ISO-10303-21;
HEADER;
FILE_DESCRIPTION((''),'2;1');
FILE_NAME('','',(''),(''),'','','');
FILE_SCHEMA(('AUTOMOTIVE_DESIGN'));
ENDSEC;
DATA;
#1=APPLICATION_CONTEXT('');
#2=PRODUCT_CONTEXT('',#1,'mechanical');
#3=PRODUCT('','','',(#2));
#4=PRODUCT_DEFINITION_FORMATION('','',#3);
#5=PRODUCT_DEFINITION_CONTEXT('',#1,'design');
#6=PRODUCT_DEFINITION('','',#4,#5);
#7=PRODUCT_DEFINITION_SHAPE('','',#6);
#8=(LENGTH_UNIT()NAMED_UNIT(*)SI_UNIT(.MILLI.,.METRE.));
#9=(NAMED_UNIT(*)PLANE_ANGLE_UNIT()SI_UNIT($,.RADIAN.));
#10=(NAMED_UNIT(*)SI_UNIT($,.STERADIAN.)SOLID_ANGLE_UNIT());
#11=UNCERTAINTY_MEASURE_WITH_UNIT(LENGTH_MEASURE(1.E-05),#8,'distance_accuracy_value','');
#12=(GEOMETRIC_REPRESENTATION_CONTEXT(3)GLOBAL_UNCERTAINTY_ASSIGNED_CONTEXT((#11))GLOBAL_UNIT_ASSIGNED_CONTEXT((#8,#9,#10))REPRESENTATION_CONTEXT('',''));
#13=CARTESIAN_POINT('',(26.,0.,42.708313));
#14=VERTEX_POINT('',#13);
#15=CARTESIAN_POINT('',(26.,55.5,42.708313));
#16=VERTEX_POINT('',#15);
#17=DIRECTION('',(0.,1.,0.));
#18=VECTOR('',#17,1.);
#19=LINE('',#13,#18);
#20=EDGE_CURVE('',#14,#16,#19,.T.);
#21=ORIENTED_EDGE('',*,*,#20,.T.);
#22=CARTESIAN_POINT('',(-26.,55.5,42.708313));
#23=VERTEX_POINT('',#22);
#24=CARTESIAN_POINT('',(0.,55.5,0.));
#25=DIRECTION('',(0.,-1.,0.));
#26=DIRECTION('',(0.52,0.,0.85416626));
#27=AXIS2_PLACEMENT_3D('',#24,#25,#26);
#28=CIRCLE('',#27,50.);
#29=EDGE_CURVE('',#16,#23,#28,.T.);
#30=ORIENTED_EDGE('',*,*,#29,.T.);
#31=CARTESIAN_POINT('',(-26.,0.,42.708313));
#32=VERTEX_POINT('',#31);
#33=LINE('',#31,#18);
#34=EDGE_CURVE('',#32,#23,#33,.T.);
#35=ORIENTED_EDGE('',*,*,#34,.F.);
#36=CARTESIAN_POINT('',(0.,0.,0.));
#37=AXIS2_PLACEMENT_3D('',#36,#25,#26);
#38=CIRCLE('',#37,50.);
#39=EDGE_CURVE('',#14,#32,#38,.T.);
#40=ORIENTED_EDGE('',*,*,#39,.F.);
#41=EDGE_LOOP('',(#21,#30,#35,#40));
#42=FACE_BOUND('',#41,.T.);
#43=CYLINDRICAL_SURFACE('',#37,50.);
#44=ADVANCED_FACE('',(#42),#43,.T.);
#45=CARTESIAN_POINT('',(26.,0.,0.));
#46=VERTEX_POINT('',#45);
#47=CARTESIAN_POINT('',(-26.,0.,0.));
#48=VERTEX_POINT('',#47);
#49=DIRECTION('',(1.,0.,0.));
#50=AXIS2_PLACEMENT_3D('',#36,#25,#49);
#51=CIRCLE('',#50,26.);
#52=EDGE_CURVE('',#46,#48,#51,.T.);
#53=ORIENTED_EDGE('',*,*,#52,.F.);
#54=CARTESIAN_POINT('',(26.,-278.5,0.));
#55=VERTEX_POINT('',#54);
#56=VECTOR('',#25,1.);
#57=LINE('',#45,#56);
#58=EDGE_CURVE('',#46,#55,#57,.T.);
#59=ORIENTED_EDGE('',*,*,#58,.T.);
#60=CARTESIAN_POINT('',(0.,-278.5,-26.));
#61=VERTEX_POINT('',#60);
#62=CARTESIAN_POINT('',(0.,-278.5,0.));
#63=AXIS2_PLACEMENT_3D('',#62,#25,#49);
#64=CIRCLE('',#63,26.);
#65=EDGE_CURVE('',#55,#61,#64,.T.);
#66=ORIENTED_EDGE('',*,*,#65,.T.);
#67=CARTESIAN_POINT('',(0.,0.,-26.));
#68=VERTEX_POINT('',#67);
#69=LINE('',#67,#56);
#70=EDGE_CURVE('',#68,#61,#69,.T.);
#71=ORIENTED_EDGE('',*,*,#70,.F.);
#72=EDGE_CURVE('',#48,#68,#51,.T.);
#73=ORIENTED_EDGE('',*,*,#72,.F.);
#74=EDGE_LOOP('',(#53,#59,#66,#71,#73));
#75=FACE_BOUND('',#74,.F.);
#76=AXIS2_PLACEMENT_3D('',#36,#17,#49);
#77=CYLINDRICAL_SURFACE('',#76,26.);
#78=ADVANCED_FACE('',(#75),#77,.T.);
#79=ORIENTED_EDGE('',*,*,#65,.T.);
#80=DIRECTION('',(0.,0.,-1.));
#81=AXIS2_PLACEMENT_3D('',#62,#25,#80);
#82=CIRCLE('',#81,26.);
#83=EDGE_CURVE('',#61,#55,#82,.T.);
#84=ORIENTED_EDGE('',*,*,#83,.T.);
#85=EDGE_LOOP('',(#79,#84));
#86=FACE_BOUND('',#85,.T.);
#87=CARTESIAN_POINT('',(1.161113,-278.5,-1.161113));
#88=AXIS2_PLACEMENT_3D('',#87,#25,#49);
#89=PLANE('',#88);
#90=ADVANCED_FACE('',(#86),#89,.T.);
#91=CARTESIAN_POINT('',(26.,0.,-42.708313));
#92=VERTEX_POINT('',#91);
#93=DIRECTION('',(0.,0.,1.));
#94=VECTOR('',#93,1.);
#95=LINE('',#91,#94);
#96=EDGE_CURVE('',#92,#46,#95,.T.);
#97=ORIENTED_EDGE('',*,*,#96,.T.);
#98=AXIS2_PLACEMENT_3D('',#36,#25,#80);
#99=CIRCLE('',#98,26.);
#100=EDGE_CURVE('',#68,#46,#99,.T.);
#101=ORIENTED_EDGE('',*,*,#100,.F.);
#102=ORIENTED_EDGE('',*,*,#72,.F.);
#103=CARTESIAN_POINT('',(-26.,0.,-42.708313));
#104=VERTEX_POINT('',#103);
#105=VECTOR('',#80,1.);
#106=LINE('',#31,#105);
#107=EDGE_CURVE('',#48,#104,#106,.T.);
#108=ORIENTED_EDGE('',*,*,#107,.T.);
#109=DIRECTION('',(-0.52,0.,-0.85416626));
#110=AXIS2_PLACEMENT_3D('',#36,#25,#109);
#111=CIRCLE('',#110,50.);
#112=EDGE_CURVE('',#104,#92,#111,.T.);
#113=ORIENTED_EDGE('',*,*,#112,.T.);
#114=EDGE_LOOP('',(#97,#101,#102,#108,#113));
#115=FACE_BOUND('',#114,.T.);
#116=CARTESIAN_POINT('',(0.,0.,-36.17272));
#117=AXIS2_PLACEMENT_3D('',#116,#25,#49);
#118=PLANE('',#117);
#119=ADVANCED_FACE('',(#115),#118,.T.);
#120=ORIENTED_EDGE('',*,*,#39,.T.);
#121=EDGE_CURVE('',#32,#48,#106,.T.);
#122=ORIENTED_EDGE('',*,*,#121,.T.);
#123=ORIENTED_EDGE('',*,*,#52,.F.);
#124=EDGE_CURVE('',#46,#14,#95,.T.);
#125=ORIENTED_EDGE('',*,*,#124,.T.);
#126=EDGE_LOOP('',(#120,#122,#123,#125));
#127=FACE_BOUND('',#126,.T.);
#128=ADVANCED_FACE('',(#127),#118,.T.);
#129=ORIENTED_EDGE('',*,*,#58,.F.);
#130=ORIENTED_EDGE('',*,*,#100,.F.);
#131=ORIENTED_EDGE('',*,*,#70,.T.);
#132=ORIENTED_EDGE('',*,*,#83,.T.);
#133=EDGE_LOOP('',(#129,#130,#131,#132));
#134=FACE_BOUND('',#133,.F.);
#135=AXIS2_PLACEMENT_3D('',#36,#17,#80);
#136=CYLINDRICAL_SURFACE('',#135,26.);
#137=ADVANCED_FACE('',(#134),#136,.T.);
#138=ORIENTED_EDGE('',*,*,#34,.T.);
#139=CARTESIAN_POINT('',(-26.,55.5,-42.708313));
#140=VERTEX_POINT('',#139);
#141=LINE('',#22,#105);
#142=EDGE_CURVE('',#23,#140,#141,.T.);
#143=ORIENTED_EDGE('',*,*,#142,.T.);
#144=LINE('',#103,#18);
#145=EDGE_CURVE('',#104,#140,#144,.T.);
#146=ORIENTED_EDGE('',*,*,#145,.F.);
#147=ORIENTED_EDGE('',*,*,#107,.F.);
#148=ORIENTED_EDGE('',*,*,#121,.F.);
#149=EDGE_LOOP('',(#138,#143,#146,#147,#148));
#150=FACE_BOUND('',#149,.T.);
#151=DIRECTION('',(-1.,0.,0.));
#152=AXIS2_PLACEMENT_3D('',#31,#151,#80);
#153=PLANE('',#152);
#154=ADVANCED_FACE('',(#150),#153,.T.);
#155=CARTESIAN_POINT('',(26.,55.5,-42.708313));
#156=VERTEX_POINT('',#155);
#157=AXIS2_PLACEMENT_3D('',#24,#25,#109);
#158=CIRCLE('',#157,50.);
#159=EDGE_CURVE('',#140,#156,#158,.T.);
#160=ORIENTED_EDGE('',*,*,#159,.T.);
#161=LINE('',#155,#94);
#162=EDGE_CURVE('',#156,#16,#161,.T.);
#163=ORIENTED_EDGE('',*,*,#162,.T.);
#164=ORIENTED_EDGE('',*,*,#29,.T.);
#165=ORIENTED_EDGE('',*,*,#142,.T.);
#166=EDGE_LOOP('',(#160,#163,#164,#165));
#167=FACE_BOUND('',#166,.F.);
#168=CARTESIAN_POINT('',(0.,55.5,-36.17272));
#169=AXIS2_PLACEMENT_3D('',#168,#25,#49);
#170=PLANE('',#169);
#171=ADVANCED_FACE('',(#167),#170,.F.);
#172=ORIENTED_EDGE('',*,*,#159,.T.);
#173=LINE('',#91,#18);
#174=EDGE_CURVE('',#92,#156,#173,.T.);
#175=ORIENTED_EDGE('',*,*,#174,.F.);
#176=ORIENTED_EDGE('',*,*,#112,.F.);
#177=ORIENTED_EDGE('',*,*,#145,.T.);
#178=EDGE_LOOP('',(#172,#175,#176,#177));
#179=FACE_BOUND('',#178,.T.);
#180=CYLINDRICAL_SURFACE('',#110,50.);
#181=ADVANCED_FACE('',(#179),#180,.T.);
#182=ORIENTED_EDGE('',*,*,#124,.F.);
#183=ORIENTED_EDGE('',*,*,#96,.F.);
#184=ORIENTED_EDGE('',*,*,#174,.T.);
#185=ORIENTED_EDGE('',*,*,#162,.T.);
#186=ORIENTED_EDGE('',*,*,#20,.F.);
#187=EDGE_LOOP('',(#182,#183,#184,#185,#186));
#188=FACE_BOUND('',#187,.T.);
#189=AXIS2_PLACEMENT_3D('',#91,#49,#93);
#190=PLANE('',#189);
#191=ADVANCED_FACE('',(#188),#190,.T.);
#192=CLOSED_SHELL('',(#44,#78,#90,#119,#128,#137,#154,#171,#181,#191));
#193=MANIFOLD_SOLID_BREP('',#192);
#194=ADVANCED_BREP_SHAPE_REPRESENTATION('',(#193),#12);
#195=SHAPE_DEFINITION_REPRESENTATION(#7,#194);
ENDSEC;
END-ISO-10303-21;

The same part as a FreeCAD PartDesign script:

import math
import FreeCAD as App
import Part
import Sketcher
from FreeCAD import Vector
Q = App.Units.Quantity

doc = App.newDocument("Part")
params = doc.addObject("Spreadsheet::Sheet", "Params")
for row, (alias, value) in enumerate([
    ("sketch1_radius", "26 mm"),
    ("pad1_length", "278.5 mm"),
    ("sketch2_radius", "50 mm"),
    ("pad2_length", "55.5 mm"),
], start=1):
    params.set(f"A{row}", alias)
    params.set(f"B{row}", "=" + value)
    params.setAlias(f"B{row}", alias)

body = doc.addObject("PartDesign::Body", "Body")

# Sketch on XZ plane
sketch1 = body.newObject("Sketcher::SketchObject", "Sketch")
sketch1.AttachmentSupport = (doc.getObject("XZ_Plane"), [""])
sketch1.MapMode = "FlatFace"
sketch1.addGeometry([
    Part.ArcOfCircle(Part.Circle(Vector(0, 0, 0), Vector(0, 0, 1), 26), math.radians(-90), math.radians(0)),
    Part.ArcOfCircle(Part.Circle(Vector(0, 0, 0), Vector(0, 0, 1), 26), math.radians(0), math.radians(270)),
], False)
sketch1.addConstraint([
    Sketcher.Constraint("Tangent", 0, 1, 1, 2),
    Sketcher.Constraint("Coincident", 1, 1, 0, 2),
    Sketcher.Constraint("Coincident", 0, 3, -1, 1),
    Sketcher.Constraint("PointOnObject", 0, 1, -2),
    Sketcher.Constraint("PointOnObject", 1, 1, -1),
    Sketcher.Constraint("Radius", 0, Q("26 mm")),
])
sketch1.setExpression("Constraints[5]", "Params.sketch1_radius")
pad1 = body.newObject("PartDesign::Pad", "Pad")
pad1.Profile = sketch1
pad1.setExpression("Length", "Params.pad1_length")

# Sketch on XZ plane
sketch2 = body.newObject("Sketcher::SketchObject", "Sketch001")
sketch2.AttachmentSupport = (doc.getObject("XZ_Plane"), [""])
sketch2.MapMode = "FlatFace"
sketch2.addGeometry([
    Part.LineSegment(Vector(26, -43, 0), Vector(26, 43, 0)),
    Part.ArcOfCircle(Part.Circle(Vector(0, 0, 0), Vector(0, 0, 1), 50), math.radians(59), math.radians(121)),
    Part.LineSegment(Vector(-26, 43, 0), Vector(-26, -43, 0)),
    Part.ArcOfCircle(Part.Circle(Vector(0, 0, 0), Vector(0, 0, 1), 50), math.radians(-121), math.radians(-59)),
], False)
sketch2.addConstraint([
    Sketcher.Constraint("Coincident", 0, 2, 1, 1),
    Sketcher.Constraint("Coincident", 1, 2, 2, 1),
    Sketcher.Constraint("Coincident", 2, 2, 3, 1),
    Sketcher.Constraint("Coincident", 3, 2, 0, 1),
    Sketcher.Constraint("Vertical", 0),
    Sketcher.Constraint("Vertical", 2),
    Sketcher.Constraint("Coincident", 1, 3, -1, 1),
    Sketcher.Constraint("Coincident", 3, 3, -1, 1),
    Sketcher.Constraint("Equal", 1, 3),
    Sketcher.Constraint("Horizontal", 0, 2, 1, 2),
    Sketcher.Constraint("Radius", 1, Q("50 mm")),
    Sketcher.Constraint("DistanceX", -1, 1, 0, 2, Q("26 mm")),
])
sketch2.setExpression("Constraints[10]", "Params.sketch2_radius")
pad2 = body.newObject("PartDesign::Pad", "Pad001")
pad2.Profile = sketch2
pad2.setExpression("Length", "Params.pad2_length")
pad2.Reversed = True

doc.recompute()
